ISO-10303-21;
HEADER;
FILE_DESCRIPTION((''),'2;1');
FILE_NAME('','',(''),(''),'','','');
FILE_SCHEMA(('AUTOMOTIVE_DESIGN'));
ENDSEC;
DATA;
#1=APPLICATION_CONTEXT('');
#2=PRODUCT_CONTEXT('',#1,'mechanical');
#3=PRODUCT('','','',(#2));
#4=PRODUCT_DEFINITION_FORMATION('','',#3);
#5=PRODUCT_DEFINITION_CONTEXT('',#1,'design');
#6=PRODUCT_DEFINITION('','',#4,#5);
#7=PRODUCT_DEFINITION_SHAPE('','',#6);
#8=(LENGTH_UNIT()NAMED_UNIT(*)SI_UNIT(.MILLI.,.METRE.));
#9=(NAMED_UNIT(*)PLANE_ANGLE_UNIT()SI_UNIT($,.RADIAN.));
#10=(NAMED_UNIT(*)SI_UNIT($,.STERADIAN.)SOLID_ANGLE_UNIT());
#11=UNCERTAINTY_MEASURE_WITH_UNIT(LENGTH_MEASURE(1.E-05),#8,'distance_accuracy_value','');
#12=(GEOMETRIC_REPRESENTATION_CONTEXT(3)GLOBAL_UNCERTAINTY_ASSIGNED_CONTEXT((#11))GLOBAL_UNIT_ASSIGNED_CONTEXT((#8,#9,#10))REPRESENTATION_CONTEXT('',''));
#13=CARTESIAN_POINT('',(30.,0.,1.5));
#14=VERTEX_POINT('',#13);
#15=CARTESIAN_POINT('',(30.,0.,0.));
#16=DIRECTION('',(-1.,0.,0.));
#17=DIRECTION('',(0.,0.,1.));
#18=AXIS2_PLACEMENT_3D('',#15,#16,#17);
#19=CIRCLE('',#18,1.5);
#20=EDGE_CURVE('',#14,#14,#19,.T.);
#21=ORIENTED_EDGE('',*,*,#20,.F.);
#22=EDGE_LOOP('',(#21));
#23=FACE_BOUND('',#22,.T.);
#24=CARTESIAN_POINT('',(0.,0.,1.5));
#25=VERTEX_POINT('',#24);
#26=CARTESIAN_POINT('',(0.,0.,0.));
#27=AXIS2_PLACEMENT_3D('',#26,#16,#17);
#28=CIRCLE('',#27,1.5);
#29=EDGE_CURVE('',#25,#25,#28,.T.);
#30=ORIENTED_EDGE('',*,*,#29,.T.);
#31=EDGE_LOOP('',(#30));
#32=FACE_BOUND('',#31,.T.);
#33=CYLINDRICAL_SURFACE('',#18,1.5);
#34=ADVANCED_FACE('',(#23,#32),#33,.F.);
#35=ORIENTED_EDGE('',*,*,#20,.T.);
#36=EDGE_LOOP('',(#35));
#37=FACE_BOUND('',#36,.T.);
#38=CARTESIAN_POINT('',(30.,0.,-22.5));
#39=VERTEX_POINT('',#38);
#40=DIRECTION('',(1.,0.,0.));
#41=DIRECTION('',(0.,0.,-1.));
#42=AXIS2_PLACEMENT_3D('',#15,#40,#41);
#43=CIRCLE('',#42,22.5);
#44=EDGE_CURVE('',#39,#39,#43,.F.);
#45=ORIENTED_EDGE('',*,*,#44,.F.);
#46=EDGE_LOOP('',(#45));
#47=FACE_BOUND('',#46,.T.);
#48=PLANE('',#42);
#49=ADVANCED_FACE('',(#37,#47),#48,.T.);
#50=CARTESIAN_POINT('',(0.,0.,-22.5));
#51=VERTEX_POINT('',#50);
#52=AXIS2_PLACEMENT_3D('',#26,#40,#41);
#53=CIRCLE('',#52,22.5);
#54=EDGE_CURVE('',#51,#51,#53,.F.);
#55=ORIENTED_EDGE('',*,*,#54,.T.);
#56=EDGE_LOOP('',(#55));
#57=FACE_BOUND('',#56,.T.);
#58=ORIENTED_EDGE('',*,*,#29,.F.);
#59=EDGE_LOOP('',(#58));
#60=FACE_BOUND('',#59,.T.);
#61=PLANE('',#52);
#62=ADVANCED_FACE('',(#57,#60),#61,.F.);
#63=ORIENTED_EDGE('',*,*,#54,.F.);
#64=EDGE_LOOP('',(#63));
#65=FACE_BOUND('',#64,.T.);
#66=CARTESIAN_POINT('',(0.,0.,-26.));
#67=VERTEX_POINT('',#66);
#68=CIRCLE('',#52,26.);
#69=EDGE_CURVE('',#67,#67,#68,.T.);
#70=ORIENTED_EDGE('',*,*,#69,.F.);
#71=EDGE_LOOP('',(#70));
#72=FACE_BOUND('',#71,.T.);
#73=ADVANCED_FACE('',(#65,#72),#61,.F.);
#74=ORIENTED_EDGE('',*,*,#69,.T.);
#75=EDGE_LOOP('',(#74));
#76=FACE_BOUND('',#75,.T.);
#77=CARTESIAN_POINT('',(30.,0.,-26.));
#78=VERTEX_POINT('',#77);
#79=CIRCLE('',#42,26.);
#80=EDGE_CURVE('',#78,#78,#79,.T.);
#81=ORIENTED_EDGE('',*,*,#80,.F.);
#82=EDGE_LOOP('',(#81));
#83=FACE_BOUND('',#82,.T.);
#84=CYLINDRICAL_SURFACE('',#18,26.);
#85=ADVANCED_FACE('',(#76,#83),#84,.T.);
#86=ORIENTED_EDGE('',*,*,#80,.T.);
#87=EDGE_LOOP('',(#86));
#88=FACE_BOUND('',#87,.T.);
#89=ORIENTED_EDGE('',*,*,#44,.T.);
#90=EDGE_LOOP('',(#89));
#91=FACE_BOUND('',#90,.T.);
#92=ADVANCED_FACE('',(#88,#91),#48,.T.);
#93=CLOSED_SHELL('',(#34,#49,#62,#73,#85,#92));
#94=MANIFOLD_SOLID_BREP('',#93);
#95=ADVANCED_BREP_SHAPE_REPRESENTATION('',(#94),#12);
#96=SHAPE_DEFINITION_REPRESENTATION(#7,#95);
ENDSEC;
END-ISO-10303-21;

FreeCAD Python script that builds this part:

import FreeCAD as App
import Part
import Sketcher

V = App.Vector

doc = App.newDocument("Part")
body = doc.addObject("PartDesign::Body", "Body")

sketch1 = body.newObject("Sketcher::SketchObject", "Sketch")
sketch1.AttachmentSupport = (doc.getObject("YZ_Plane"), [""])
sketch1.MapMode = "FlatFace"
sketch1.addGeometry(Part.Circle(V(0, 0, 0), V(0, 0, 1), 26), False)
sketch1.addConstraint(Sketcher.Constraint("Coincident", 0, 3, -1, 1))
sketch1.addConstraint(Sketcher.Constraint("Diameter", 0, 52.0))
pad1 = body.newObject("PartDesign::Pad", "Pad")
pad1.Profile = sketch1
pad1.Length = 30

sketch2 = body.newObject("Sketcher::SketchObject", "Sketch001")
sketch2.AttachmentSupport = (doc.getObject("YZ_Plane"), [""])
sketch2.MapMode = "FlatFace"
sketch2.addGeometry(Part.Circle(V(0, 0, 0), V(0, 0, 1), 1.5), False)
sketch2.addConstraint(Sketcher.Constraint("Coincident", 0, 3, -1, 1))
sketch2.addConstraint(Sketcher.Constraint("Diameter", 0, 3.0))
pocket1 = body.newObject("PartDesign::Pocket", "Pocket")
pocket1.Profile = sketch2
pocket1.Type = "ThroughAll"
pocket1.Reversed = True

doc.recompute()
